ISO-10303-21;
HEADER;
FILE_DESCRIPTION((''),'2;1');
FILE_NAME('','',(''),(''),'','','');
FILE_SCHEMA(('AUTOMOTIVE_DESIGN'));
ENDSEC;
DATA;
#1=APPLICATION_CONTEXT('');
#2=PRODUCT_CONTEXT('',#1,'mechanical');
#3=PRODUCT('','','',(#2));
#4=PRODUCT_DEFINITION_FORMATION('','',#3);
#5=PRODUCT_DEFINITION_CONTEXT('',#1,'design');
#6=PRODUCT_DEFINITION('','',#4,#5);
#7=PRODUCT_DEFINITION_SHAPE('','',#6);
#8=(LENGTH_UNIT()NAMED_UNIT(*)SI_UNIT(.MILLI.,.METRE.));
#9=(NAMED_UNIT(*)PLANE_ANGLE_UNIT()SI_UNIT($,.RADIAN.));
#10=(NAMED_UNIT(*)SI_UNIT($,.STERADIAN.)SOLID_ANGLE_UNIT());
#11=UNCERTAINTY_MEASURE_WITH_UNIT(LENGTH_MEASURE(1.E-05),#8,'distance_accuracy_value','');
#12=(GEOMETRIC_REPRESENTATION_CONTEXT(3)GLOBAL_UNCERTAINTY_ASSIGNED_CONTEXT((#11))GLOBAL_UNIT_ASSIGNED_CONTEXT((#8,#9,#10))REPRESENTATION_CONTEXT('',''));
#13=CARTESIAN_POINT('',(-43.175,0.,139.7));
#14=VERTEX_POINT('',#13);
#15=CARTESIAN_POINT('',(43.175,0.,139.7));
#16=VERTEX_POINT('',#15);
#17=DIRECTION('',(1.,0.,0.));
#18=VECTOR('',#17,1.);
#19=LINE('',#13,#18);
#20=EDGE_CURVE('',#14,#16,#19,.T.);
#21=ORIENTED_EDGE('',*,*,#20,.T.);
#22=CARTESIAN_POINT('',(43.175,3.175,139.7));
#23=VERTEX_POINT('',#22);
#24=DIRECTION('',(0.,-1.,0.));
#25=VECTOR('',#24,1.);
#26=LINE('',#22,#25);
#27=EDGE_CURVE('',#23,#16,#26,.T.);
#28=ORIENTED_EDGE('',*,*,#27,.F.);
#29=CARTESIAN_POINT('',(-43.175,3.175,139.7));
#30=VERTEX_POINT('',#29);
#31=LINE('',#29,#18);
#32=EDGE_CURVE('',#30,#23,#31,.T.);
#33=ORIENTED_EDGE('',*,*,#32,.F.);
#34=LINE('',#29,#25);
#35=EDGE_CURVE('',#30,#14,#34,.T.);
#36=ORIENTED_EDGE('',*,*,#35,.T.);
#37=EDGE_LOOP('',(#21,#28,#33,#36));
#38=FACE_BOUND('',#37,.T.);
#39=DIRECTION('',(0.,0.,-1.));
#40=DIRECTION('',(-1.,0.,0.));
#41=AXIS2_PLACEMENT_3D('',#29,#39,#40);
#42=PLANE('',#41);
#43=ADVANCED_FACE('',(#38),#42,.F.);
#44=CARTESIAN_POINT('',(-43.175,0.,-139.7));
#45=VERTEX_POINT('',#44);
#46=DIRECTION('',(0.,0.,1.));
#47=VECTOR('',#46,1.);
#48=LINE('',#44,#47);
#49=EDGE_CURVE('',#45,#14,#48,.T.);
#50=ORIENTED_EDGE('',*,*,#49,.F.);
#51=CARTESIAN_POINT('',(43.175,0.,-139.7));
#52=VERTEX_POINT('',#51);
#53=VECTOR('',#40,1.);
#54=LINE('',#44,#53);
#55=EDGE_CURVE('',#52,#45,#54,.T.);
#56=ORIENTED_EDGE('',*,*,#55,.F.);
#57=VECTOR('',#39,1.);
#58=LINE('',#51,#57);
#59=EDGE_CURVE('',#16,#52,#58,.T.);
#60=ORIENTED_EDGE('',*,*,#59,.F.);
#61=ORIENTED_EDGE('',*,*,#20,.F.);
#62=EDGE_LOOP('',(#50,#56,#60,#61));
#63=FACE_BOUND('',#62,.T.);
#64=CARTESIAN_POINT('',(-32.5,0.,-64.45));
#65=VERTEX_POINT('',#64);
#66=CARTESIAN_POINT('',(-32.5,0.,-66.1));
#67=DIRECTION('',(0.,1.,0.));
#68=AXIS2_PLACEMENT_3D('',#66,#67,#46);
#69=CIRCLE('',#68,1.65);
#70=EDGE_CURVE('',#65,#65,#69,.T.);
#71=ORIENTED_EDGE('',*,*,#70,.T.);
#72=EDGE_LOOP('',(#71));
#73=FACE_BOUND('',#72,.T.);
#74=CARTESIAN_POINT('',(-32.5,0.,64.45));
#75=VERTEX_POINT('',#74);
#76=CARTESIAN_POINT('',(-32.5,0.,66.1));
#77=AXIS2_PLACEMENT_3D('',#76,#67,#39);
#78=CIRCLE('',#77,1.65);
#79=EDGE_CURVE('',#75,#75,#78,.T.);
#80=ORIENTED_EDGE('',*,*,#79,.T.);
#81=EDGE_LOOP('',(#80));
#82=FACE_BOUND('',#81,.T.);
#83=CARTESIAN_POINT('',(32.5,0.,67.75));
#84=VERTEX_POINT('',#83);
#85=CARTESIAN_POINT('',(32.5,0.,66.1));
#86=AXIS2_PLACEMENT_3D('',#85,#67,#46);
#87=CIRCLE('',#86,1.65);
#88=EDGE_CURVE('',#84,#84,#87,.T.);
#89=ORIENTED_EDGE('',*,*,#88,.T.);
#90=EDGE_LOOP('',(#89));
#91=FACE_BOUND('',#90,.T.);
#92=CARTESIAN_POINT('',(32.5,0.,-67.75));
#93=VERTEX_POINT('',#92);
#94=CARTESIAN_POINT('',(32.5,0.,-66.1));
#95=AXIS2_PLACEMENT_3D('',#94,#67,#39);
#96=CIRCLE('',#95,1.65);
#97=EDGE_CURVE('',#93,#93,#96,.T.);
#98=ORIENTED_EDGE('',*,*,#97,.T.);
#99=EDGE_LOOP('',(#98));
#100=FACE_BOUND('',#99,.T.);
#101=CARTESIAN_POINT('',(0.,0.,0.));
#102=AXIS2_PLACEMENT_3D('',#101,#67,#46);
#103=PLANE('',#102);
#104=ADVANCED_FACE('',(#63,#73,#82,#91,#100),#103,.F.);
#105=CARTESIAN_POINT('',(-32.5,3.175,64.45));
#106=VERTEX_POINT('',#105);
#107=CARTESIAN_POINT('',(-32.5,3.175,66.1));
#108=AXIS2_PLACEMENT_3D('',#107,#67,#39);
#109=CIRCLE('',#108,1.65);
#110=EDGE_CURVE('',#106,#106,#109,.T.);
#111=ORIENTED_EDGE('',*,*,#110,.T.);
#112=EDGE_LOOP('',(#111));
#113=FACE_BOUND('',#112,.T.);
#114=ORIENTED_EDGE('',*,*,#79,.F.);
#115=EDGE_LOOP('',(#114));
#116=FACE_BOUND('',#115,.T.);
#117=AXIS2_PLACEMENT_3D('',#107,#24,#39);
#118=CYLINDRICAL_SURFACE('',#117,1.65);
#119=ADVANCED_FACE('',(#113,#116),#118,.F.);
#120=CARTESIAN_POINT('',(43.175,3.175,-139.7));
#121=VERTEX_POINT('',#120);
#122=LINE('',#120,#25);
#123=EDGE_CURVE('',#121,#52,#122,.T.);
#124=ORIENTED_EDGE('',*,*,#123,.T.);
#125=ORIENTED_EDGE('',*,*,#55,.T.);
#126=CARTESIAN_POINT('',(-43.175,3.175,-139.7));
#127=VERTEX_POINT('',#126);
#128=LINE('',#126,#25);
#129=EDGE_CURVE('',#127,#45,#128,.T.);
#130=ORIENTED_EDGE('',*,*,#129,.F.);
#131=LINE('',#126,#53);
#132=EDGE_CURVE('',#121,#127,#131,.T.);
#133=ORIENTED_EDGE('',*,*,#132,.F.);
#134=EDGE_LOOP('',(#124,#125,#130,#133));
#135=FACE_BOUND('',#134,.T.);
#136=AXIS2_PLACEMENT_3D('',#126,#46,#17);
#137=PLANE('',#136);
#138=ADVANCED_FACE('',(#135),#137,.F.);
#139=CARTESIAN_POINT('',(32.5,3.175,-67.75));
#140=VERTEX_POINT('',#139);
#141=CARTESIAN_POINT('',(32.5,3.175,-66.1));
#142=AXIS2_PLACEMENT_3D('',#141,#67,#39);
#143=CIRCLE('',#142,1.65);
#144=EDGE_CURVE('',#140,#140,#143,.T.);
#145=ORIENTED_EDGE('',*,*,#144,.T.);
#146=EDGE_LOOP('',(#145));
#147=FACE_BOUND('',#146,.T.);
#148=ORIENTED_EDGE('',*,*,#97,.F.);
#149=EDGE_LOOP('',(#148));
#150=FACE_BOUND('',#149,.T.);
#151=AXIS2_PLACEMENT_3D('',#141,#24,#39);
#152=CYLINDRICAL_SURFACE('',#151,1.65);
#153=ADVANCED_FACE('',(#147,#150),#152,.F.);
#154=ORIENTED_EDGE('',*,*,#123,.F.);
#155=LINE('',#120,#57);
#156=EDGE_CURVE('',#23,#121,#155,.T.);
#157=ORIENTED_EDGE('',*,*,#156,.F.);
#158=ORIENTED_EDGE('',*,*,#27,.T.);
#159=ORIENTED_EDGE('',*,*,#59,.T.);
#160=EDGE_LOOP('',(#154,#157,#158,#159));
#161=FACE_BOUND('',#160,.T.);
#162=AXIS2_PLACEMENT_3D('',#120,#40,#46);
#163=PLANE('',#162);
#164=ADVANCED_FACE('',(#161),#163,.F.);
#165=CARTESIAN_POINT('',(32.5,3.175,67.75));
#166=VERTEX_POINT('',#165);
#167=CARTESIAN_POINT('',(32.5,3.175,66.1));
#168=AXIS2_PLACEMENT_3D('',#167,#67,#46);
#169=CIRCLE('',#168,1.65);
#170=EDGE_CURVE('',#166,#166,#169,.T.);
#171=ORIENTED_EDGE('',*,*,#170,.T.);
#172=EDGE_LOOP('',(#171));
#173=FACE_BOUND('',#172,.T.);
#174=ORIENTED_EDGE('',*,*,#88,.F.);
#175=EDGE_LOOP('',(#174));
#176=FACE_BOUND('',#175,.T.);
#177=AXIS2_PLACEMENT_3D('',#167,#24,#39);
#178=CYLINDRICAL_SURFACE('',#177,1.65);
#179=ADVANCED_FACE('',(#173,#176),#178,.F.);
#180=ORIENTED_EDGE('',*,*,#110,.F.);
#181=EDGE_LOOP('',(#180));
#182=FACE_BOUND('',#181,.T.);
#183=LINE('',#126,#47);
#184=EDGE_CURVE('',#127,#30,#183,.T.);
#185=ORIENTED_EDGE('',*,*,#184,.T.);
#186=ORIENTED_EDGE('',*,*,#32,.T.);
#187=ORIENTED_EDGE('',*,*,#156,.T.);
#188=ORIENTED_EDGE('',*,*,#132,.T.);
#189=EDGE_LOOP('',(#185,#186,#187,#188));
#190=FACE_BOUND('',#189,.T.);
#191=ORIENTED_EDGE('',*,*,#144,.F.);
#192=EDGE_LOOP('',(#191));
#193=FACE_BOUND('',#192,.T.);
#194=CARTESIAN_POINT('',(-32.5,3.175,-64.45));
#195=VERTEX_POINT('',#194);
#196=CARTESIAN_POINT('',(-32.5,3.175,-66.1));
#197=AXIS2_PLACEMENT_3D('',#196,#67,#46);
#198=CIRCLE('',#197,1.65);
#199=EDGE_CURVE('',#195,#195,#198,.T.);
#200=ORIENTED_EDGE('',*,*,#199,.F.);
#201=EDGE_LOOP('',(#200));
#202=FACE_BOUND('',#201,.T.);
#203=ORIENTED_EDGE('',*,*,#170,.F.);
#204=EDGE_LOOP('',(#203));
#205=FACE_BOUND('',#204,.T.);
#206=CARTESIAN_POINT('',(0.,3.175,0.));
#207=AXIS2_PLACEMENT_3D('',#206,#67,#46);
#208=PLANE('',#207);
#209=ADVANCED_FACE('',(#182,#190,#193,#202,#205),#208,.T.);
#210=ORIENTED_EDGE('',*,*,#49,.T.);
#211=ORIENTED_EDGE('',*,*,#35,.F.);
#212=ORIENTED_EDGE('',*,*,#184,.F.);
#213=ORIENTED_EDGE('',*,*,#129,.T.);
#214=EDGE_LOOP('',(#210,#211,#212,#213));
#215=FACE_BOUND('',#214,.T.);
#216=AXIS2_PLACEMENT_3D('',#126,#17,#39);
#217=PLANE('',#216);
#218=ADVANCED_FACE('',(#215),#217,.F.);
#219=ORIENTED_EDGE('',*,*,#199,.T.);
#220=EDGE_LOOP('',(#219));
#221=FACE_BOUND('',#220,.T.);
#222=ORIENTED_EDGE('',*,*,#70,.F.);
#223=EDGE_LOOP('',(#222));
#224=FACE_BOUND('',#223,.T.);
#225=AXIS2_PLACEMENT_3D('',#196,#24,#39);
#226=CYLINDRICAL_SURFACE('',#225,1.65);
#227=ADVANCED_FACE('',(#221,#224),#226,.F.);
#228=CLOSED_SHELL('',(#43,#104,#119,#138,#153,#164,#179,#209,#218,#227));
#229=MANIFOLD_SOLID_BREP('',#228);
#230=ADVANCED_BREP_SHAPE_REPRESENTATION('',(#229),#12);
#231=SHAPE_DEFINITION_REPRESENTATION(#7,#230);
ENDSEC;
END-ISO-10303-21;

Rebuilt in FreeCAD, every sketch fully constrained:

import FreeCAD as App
import Part
import Sketcher

V = App.Vector
Q = App.Units.Quantity


def add_polygon(sketch, points):
    """Adds a closed chain of lines whose ends are joined by coincident constraints."""
    first, n = sketch.GeometryCount, len(points)
    for a, b in zip(points, points[1:] + points[:1]):
        sketch.addGeometry(Part.LineSegment(App.Vector(*a, 0), App.Vector(*b, 0)), False)
    for i in range(n):
        sketch.addConstraint(Sketcher.Constraint("Coincident", first + i, 2, first + (i + 1) % n, 1))

doc = App.newDocument("Part")
body = doc.addObject("PartDesign::Body", "Body")

sketch1 = body.newObject("Sketcher::SketchObject", "Sketch")
sketch1.AttachmentSupport = (doc.getObject("XZ_Plane"), [""])
sketch1.MapMode = "FlatFace"
add_polygon(sketch1, [(-43.2, -139.7), (-43.2, 139.7), (43.2, 139.7), (43.2, -139.7)])
sketch1.addGeometry(Part.Circle(V(-32.5, 66.1, 0), V(0, 0, 1), 1.6), False)
sketch1.addGeometry(Part.Circle(V(32.5, 66.1, 0), V(0, 0, 1), 1.6), False)
sketch1.addGeometry(Part.Circle(V(-32.5, -66.1, 0), V(0, 0, 1), 1.6), False)
sketch1.addGeometry(Part.Circle(V(32.5, -66.1, 0), V(0, 0, 1), 1.6), False)
sketch1.addConstraint([
    Sketcher.Constraint("Vertical", 0),
    Sketcher.Constraint("Horizontal", 1),
    Sketcher.Constraint("Vertical", 2),
    Sketcher.Constraint("Horizontal", 3),
    Sketcher.Constraint("Equal", 4, 5),
    Sketcher.Constraint("Equal", 5, 6),
    Sketcher.Constraint("Equal", 6, 7),
    Sketcher.Constraint("Symmetric", 5, 3, 6, 3, -1, 1),
    Sketcher.Constraint("Symmetric", 4, 3, 7, 3, -1, 1),
    Sketcher.Constraint("Symmetric", 0, 2, 2, 2, -1, 1),
    Sketcher.Constraint("Symmetric", 4, 3, 5, 3, -2),
    Sketcher.Constraint("DistanceY", 0, 1, 0, 2, Q("11 in")),
    Sketcher.Constraint("Diameter", 4, 3.3),
    Sketcher.Constraint("DistanceX", 1, 1, 1, 2, 86.35),
    Sketcher.Constraint("DistanceX", 4, 3, -1, 1, 32.5),
    Sketcher.Constraint("DistanceY", -1, 1, 4, 3, 66.1),
])
pad1 = body.newObject("PartDesign::Pad", "Pad")
pad1.Profile = sketch1
pad1.Length = Q("0.125 in")
pad1.Reversed = True

doc.recompute()
